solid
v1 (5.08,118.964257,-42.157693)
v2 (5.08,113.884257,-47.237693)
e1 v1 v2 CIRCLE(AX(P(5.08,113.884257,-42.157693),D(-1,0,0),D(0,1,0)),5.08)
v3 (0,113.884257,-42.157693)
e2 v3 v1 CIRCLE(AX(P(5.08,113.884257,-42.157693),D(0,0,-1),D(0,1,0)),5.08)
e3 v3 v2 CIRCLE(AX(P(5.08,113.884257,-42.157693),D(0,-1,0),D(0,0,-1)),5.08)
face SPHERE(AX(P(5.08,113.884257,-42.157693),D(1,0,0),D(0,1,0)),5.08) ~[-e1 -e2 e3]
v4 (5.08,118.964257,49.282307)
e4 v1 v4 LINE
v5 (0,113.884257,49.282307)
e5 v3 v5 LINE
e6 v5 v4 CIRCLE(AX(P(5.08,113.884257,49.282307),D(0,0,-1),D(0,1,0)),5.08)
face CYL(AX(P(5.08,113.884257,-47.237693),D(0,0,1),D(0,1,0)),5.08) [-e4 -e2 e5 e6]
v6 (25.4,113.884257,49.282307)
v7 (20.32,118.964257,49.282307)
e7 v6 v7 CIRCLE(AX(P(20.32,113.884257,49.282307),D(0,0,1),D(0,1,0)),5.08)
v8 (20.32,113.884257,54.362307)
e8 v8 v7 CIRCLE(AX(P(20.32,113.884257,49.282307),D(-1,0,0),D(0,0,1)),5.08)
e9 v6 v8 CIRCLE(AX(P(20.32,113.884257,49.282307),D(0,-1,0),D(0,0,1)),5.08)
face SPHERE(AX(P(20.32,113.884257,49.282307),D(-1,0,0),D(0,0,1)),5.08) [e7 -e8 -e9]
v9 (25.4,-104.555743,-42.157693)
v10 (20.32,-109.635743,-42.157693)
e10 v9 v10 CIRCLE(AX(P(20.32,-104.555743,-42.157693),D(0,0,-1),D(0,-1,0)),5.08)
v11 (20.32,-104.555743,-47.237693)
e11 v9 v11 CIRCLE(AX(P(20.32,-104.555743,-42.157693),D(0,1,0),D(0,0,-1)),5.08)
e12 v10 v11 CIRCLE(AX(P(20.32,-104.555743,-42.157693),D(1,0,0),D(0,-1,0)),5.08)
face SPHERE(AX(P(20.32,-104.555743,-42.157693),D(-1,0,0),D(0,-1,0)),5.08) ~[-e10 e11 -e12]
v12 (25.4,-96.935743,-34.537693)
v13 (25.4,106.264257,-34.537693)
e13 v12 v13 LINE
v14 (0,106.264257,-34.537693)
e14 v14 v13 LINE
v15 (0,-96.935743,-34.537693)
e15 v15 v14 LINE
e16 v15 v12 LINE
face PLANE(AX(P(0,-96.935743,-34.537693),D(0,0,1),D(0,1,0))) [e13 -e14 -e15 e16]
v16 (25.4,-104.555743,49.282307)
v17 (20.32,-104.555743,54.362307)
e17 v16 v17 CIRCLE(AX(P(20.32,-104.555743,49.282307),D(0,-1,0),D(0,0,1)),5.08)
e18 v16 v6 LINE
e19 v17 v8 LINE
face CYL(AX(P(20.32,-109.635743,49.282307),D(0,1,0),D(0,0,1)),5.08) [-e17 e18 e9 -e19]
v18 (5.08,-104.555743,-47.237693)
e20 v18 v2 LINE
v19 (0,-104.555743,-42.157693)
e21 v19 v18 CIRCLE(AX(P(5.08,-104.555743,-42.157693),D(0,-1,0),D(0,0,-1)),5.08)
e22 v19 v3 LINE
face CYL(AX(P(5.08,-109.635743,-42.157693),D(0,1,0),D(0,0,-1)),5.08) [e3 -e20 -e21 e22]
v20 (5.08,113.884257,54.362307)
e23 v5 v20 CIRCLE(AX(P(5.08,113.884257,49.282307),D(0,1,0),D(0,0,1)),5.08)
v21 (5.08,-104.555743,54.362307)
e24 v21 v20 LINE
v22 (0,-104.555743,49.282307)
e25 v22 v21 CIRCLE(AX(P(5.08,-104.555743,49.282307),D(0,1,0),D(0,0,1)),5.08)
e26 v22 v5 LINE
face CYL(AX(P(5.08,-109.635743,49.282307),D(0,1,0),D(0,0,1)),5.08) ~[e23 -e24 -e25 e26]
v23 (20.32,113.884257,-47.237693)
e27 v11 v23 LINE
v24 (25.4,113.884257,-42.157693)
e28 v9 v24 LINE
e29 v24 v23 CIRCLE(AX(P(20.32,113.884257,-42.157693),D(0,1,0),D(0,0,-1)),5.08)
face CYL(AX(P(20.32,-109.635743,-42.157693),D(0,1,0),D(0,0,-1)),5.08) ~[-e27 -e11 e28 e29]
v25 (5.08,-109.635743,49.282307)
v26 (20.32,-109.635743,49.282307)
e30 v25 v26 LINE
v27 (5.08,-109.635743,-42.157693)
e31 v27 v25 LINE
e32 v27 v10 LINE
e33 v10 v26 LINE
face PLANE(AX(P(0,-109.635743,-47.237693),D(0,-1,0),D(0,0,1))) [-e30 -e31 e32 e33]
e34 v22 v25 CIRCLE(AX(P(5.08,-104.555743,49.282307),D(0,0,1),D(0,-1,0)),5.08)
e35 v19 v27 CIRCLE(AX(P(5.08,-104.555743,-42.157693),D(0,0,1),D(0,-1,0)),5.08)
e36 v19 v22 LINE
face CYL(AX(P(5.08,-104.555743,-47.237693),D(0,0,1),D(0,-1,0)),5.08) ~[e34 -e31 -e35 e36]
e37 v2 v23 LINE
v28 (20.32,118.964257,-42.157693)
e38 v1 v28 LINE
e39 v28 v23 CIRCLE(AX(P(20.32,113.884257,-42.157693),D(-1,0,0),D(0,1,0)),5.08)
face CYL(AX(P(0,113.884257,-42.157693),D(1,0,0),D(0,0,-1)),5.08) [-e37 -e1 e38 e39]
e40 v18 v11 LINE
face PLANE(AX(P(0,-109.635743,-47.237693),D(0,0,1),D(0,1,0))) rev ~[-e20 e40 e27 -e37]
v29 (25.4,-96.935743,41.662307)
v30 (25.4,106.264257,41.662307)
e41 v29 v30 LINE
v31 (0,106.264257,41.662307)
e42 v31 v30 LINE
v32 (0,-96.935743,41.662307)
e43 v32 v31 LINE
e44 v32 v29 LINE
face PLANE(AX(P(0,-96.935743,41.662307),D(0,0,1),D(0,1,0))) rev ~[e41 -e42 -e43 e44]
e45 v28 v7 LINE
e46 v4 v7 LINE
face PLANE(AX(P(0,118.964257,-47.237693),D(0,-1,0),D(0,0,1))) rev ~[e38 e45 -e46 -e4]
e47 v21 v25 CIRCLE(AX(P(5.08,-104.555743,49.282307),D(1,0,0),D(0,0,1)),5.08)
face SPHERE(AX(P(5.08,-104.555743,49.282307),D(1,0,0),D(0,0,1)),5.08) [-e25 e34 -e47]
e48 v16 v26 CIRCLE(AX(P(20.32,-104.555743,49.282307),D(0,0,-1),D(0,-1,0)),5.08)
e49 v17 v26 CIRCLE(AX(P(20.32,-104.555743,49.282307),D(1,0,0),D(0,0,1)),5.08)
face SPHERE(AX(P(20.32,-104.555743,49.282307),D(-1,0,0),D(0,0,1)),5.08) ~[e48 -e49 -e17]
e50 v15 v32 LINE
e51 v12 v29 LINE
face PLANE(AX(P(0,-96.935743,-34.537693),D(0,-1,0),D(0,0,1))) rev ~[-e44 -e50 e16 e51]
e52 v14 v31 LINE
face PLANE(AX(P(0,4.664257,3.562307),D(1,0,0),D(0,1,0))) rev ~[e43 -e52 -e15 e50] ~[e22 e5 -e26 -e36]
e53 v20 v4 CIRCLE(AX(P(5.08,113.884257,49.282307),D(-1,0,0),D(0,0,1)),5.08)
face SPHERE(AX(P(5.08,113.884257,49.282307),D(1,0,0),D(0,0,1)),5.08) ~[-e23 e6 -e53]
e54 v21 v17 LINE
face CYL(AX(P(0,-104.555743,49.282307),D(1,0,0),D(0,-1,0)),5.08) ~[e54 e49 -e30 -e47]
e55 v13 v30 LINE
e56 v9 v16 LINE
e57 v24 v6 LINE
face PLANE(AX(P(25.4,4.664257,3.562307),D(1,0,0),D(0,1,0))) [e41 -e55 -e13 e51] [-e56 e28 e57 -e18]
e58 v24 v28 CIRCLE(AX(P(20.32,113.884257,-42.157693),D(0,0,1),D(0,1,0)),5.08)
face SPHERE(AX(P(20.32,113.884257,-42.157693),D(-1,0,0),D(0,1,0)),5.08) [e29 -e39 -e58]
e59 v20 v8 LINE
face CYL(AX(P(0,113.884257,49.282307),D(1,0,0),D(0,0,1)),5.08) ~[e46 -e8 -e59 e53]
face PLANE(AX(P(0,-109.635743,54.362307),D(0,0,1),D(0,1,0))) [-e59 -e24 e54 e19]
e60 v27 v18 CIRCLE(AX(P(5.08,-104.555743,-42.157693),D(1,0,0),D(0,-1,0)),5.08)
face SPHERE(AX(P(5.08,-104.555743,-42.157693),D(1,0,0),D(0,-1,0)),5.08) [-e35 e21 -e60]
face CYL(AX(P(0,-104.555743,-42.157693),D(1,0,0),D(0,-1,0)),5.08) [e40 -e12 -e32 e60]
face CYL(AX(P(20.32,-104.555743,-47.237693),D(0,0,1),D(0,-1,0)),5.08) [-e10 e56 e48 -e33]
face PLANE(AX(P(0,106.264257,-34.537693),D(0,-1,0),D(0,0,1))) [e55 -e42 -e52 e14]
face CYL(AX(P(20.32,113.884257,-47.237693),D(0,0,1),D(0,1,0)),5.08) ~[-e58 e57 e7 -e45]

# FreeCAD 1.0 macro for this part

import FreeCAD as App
import Part
import Sketcher

V = App.Vector
Q = App.Units.Quantity


def edges_at(feature, points):
    """Names of the edges that pass closest to the given points."""
    edges = feature.Shape.Edges
    near = lambda p: min(range(len(edges)), key=lambda i: edges[i].distToShape(Part.Vertex(*p))[0])
    return sorted({f"Edge{near(p) + 1}" for p in points})


def add_polygon(sketch, points):
    """Adds a closed chain of lines whose ends are joined by coincident constraints."""
    first, n = sketch.GeometryCount, len(points)
    for a, b in zip(points, points[1:] + points[:1]):
        sketch.addGeometry(Part.LineSegment(App.Vector(*a, 0), App.Vector(*b, 0)), False)
    for i in range(n):
        sketch.addConstraint(Sketcher.Constraint("Coincident", first + i, 2, first + (i + 1) % n, 1))

doc = App.newDocument("Part")
body = doc.addObject("PartDesign::Body", "Body")

# Sketch on YZ plane
sketch1 = body.newObject("Sketcher::SketchObject", "Sketch")
sketch1.AttachmentSupport = (doc.getObject("YZ_Plane"), [""])
sketch1.MapMode = "FlatFace"
add_polygon(sketch1, [(-110, 54), (-110, -47), (119, -47), (119, 54)])  # lines 0-3
add_polygon(sketch1, [(106, -35), (-97, -35), (-97, 42), (106, 42)])  # lines 4-7
sketch1.addConstraint(Sketcher.Constraint("Vertical", 0))
sketch1.addConstraint(Sketcher.Constraint("Horizontal", 1))
sketch1.addConstraint(Sketcher.Constraint("Vertical", 2))
sketch1.addConstraint(Sketcher.Constraint("Horizontal", 3))
sketch1.addConstraint(Sketcher.Constraint("Horizontal", 4))
sketch1.addConstraint(Sketcher.Constraint("Vertical", 5))
sketch1.addConstraint(Sketcher.Constraint("Horizontal", 6))
sketch1.addConstraint(Sketcher.Constraint("Vertical", 7))
sketch1.addConstraint(Sketcher.Constraint("DistanceX", 1, 1, 1, 2, Q("9 in")))
sketch1.addConstraint(Sketcher.Constraint("DistanceX", 4, 2, 4, 1, Q("8 in")))
sketch1.addConstraint(Sketcher.Constraint("DistanceY", 0, 2, 0, 1, Q("4 in")))
sketch1.addConstraint(Sketcher.Constraint("DistanceY", 5, 1, 5, 2, Q("3 in")))
sketch1.addConstraint(Sketcher.Constraint("DistanceX", 0, 2, 4, 2, Q("0.5 in")))
sketch1.addConstraint(Sketcher.Constraint("DistanceY", 0, 2, 4, 2, Q("0.5 in")))
sketch1.addConstraint(Sketcher.Constraint("DistanceX", 0, 2, -1, 1, 109.635743))
sketch1.addConstraint(Sketcher.Constraint("DistanceY", 0, 2, -1, 1, 47.237693))
pad1 = body.newObject("PartDesign::Pad", "Pad")
pad1.Profile = sketch1
pad1.Length = Q("1 in")
doc.recompute()

fillet = body.newObject("PartDesign::Fillet", "Fillet")
fillet.Base = (pad1, edges_at(pad1, [
    (12.7, 118.964, 54.362),
    (12.7, -109.636, 54.362),
    (0, 4.664, 54.362),
    (25.4, 4.664, 54.362),
    (12.7, -109.636, -47.238),
    (0, -109.636, 3.562),
    (25.4, -109.636, 3.562),
    (12.7, 118.964, -47.238),
    (0, 118.964, 3.562),
    (25.4, 118.964, 3.562),
    (0, 4.664, -47.238),
    (25.4, 4.664, -47.238),
]))
fillet.Radius = Q("0.2 in")

doc.recompute()
